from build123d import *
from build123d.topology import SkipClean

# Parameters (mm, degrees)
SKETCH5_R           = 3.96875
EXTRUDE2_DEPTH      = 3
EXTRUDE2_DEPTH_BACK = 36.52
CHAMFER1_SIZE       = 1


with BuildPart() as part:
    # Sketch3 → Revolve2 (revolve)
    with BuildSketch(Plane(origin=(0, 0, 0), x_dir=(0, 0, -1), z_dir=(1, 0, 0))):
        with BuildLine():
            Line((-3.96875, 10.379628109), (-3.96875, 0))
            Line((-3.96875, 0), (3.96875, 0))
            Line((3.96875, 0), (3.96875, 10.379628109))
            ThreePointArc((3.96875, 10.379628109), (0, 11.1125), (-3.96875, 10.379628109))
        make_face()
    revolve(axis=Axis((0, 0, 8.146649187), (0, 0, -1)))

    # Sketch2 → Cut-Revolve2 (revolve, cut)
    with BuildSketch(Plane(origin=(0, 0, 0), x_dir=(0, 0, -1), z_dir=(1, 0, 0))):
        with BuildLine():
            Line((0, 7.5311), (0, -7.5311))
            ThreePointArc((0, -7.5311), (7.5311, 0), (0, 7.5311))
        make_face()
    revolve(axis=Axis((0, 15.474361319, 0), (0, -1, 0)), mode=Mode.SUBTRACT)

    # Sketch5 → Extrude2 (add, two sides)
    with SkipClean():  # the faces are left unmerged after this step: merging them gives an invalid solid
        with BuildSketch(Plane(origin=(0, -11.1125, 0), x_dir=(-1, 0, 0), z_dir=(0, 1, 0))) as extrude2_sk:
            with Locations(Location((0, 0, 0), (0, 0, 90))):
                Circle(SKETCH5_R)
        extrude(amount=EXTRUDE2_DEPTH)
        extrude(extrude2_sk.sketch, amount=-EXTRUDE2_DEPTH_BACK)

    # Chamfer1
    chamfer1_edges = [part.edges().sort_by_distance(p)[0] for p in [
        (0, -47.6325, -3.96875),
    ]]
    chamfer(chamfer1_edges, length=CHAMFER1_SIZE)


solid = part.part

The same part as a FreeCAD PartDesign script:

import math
import FreeCAD as App
import Part
import Sketcher
from FreeCAD import Vector
Q = App.Units.Quantity


def edges_at(feature, points):
    """Names of the edges that pass closest to the given points."""
    edges = feature.Shape.Edges
    near = lambda p: min(range(len(edges)), key=lambda i: edges[i].distToShape(Part.Vertex(*p))[0])
    return sorted({f"Edge{near(p) + 1}" for p in points})

doc = App.newDocument("Part")
body = doc.addObject("PartDesign::Body", "Body")

# Sketch on YZ plane
sketch1 = body.newObject("Sketcher::SketchObject", "Sketch")
sketch1.AttachmentSupport = (doc.getObject("YZ_Plane"), [""])
sketch1.MapMode = "FlatFace"
sketch1.addGeometry([
    Part.LineSegment(Vector(10, 4, 0), Vector(0, 4, 0)),
    Part.LineSegment(Vector(0, 4, 0), Vector(0, -4, 0)),
    Part.LineSegment(Vector(0, -4, 0), Vector(10, -4, 0)),
    Part.ArcOfCircle(Part.Circle(Vector(0, 0, 0), Vector(0, 0, 1), 11), math.radians(-21), math.radians(21)),
], False)
sketch1.addConstraint([
    Sketcher.Constraint("Coincident", 0, 2, 1, 1),
    Sketcher.Constraint("Coincident", 1, 2, 2, 1),
    Sketcher.Constraint("Coincident", 2, 2, 3, 1),
    Sketcher.Constraint("Coincident", 3, 2, 0, 1),
    Sketcher.Constraint("Horizontal", 0),
    Sketcher.Constraint("Vertical", 1),
    Sketcher.Constraint("Horizontal", 2),
    Sketcher.Constraint("Coincident", 3, 3, -1, 1),
    Sketcher.Constraint("Symmetric", 0, 2, 1, 2, -1, 1),
    Sketcher.Constraint("Radius", 3, Q("0.4375 in")),
    Sketcher.Constraint("DistanceY", 1, 2, 1, 1, Q("0.3125 in")),
])
revolution = body.newObject("PartDesign::Revolution", "Revolution")
revolution.Profile = sketch1
revolution.ReferenceAxis = (sketch1, ["V_Axis"])
revolution.Angle = 360

# Sketch on YZ plane
sketch2 = body.newObject("Sketcher::SketchObject", "Sketch001")
sketch2.AttachmentSupport = (doc.getObject("YZ_Plane"), [""])
sketch2.MapMode = "FlatFace"
sketch2.addGeometry([
    Part.LineSegment(Vector(8, 0, 0), Vector(-8, 0, 0)),
    Part.ArcOfCircle(Part.Circle(Vector(0, 0, 0), Vector(0, 0, 1), 8), math.radians(180), math.radians(360)),
], False)
sketch2.addConstraint([
    Sketcher.Constraint("Coincident", 0, 1, 1, 2),
    Sketcher.Constraint("Coincident", 1, 1, 0, 2),
    Sketcher.Constraint("Horizontal", 0),
    Sketcher.Constraint("Coincident", 1, 3, -1, 1),
    Sketcher.Constraint("PointOnObject", 0, 1, -1),
    Sketcher.Constraint("Radius", 1, Q("0.2965 in")),
])
groove = body.newObject("PartDesign::Groove", "Groove")
groove.Profile = sketch2
groove.ReferenceAxis = (sketch2, ["H_Axis"])
groove.Angle = 360

# Sketch on XZ plane
sketch3 = body.newObject("Sketcher::SketchObject", "Sketch002")
sketch3.AttachmentSupport = (doc.getObject("XZ_Plane"), [""])
sketch3.MapMode = "FlatFace"
sketch3.AttachmentOffset = App.Placement(Vector(0, 0, 0.4375 * 25.4), App.Rotation())
sketch3.addGeometry(Part.Circle(Vector(0, 0, 0), Vector(0, 0, 1), 4), False)
sketch3.addConstraint([
    Sketcher.Constraint("Coincident", 0, 3, -1, 1),
    Sketcher.Constraint("Diameter", 0, Q("0.3125 in")),
])
pad1 = body.newObject("PartDesign::Pad", "Pad")
pad1.Profile = sketch3
pad1.Type = "TwoLengths"
pad1.Length = 3
pad1.Length2 = 36.52
pad1.Reversed = True
doc.recompute()

chamfer = body.newObject("PartDesign::Chamfer", "Chamfer")
chamfer.Base = (pad1, edges_at(pad1, [(0, -47.633, -3.969)]))
chamfer.Size = 1

doc.recompute()
